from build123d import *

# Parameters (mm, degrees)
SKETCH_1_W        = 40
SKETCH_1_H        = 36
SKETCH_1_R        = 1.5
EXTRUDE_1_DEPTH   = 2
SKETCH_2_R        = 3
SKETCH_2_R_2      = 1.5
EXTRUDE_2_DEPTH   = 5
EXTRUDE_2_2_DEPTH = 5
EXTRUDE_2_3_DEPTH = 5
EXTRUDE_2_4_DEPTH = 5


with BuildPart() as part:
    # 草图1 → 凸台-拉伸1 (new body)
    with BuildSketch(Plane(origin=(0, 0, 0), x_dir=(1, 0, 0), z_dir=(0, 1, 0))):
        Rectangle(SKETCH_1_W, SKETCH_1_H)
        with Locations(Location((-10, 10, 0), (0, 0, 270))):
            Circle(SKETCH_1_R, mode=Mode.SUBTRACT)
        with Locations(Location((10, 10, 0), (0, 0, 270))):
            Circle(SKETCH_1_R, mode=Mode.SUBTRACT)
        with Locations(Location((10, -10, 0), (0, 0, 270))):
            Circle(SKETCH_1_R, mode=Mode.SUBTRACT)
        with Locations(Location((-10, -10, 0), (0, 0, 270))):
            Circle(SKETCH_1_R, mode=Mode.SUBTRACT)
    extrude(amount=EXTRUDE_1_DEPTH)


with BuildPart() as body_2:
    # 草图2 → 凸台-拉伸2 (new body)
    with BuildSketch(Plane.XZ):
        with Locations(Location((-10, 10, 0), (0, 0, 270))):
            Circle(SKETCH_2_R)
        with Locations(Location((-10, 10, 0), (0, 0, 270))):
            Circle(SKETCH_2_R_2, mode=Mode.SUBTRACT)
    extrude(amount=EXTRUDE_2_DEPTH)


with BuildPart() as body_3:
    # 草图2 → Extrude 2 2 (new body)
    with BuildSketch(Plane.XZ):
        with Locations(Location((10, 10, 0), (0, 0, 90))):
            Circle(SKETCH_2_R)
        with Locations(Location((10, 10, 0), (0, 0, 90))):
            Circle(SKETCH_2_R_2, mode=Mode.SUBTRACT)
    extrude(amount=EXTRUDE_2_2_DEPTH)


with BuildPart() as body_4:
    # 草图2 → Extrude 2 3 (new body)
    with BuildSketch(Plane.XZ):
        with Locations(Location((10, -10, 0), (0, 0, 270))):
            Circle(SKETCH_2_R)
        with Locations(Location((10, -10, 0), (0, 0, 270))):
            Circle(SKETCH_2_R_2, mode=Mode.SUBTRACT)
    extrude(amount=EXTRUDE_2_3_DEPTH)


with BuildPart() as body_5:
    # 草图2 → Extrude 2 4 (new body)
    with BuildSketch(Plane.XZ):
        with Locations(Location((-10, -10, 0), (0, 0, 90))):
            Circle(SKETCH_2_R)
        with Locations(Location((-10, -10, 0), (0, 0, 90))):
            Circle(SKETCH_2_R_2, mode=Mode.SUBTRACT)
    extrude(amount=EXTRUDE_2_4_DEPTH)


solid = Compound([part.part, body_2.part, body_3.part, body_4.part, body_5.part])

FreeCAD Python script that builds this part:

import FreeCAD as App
import Part
import Sketcher

doc = App.newDocument("Part")
body = doc.addObject("PartDesign::Body", "Body")

# Sketch on XZ plane
sketch1 = doc.addObject("Sketcher::SketchObject", "Sketch")
body.addObject(sketch1)
sketch1.AttachmentSupport = (doc.XZ_Plane, [""])
sketch1.MapMode = "FlatFace"
sketch1.addGeometry([
    Part.LineSegment(App.Vector(-20, -18, 0), App.Vector(-20, 18, 0)),  # 0
    Part.LineSegment(App.Vector(-20, 18, 0), App.Vector(20, 18, 0)),  # 1
    Part.LineSegment(App.Vector(20, 18, 0), App.Vector(20, -18, 0)),  # 2
    Part.LineSegment(App.Vector(20, -18, 0), App.Vector(-20, -18, 0)),  # 3
    Part.Circle(App.Vector(-10, 10, 0), App.Vector(0, 0, 1), 1.5),  # 4
    Part.Circle(App.Vector(10, 10, 0), App.Vector(0, 0, 1), 1.5),  # 5
    Part.Circle(App.Vector(-10, -10, 0), App.Vector(0, 0, 1), 1.5),  # 6
    Part.Circle(App.Vector(10, -10, 0), App.Vector(0, 0, 1), 1.5),  # 7
], False)
sketch1.addConstraint([
    Sketcher.Constraint("Coincident", 0, 2, 1, 1),
    Sketcher.Constraint("Coincident", 1, 2, 2, 1),
    Sketcher.Constraint("Coincident", 2, 2, 3, 1),
    Sketcher.Constraint("Coincident", 3, 2, 0, 1),
    Sketcher.Constraint("Vertical", 0),
    Sketcher.Constraint("Horizontal", 1),
    Sketcher.Constraint("Vertical", 2),
    Sketcher.Constraint("Horizontal", 3),
    Sketcher.Constraint("Equal", 4, 5),
    Sketcher.Constraint("Equal", 5, 6),
    Sketcher.Constraint("Equal", 6, 7),
    Sketcher.Constraint("Symmetric", 5, 3, 6, 3, -1, 1),
    Sketcher.Constraint("Symmetric", 4, 3, 7, 3, -1, 1),
    Sketcher.Constraint("Symmetric", 0, 2, 2, 2, -1, 1),
    Sketcher.Constraint("Symmetric", 4, 3, 5, 3, -2),
    Sketcher.Constraint("Diameter", 4, 3.0),
    Sketcher.Constraint("DistanceX", 1, 1, 1, 2, 40.0),
    Sketcher.Constraint("DistanceY", 0, 1, 0, 2, 36.0),
    Sketcher.Constraint("DistanceX", 4, 3, -1, 1, 10.0),
    Sketcher.Constraint("DistanceY", -1, 1, 4, 3, 10.0),
])
pad1 = doc.addObject("PartDesign::Pad", "Pad")
body.addObject(pad1)
pad1.Profile = sketch1
pad1.Length = 2
pad1.Reversed = True
body2 = doc.addObject("PartDesign::Body", "Body001")

# Sketch on XZ plane
sketch2 = doc.addObject("Sketcher::SketchObject", "Sketch001")
body2.addObject(sketch2)
sketch2.AttachmentSupport = (doc.getObject("XZ_Plane001"), [""])
sketch2.MapMode = "FlatFace"
sketch2.addGeometry([
    Part.Circle(App.Vector(-10, 10, 0), App.Vector(0, 0, 1), 3),
    Part.Circle(App.Vector(-10, 10, 0), App.Vector(0, 0, 1), 1.5),
], False)
sketch2.addConstraint([
    Sketcher.Constraint("Coincident", 1, 3, 0, 3),
    Sketcher.Constraint("Diameter", 0, 6.0),
    Sketcher.Constraint("Diameter", 1, 3.0),
    Sketcher.Constraint("DistanceX", 0, 3, -1, 1, 10.0),
    Sketcher.Constraint("DistanceY", -1, 1, 0, 3, 10.0),
])
pad2 = doc.addObject("PartDesign::Pad", "Pad001")
body2.addObject(pad2)
pad2.Profile = sketch2
pad2.Length = 5
body3 = doc.addObject("PartDesign::Body", "Body002")

# Sketch on XZ plane
sketch3 = doc.addObject("Sketcher::SketchObject", "Sketch002")
body3.addObject(sketch3)
sketch3.AttachmentSupport = (doc.getObject("XZ_Plane002"), [""])
sketch3.MapMode = "FlatFace"
sketch3.addGeometry([
    Part.Circle(App.Vector(10, 10, 0), App.Vector(0, 0, 1), 3),
    Part.Circle(App.Vector(10, 10, 0), App.Vector(0, 0, 1), 1.5),
], False)
sketch3.addConstraint([
    Sketcher.Constraint("Coincident", 1, 3, 0, 3),
    Sketcher.Constraint("Diameter", 0, 6.0),
    Sketcher.Constraint("Diameter", 1, 3.0),
    Sketcher.Constraint("DistanceX", -1, 1, 0, 3, 10.0),
    Sketcher.Constraint("DistanceY", -1, 1, 0, 3, 10.0),
])
pad3 = doc.addObject("PartDesign::Pad", "Pad002")
body3.addObject(pad3)
pad3.Profile = sketch3
pad3.Length = 5
body4 = doc.addObject("PartDesign::Body", "Body003")

# Sketch on XZ plane
sketch4 = doc.addObject("Sketcher::SketchObject", "Sketch003")
body4.addObject(sketch4)
sketch4.AttachmentSupport = (doc.getObject("XZ_Plane003"), [""])
sketch4.MapMode = "FlatFace"
sketch4.addGeometry([
    Part.Circle(App.Vector(10, -10, 0), App.Vector(0, 0, 1), 3),
    Part.Circle(App.Vector(10, -10, 0), App.Vector(0, 0, 1), 1.5),
], False)
sketch4.addConstraint([
    Sketcher.Constraint("Coincident", 1, 3, 0, 3),
    Sketcher.Constraint("Diameter", 0, 6.0),
    Sketcher.Constraint("Diameter", 1, 3.0),
    Sketcher.Constraint("DistanceX", -1, 1, 0, 3, 10.0),
    Sketcher.Constraint("DistanceY", 0, 3, -1, 1, 10.0),
])
pad4 = doc.addObject("PartDesign::Pad", "Pad003")
body4.addObject(pad4)
pad4.Profile = sketch4
pad4.Length = 5
body5 = doc.addObject("PartDesign::Body", "Body004")

# Sketch on XZ plane
sketch5 = doc.addObject("Sketcher::SketchObject", "Sketch004")
body5.addObject(sketch5)
sketch5.AttachmentSupport = (doc.getObject("XZ_Plane004"), [""])
sketch5.MapMode = "FlatFace"
sketch5.addGeometry([
    Part.Circle(App.Vector(-10, -10, 0), App.Vector(0, 0, 1), 3),
    Part.Circle(App.Vector(-10, -10, 0), App.Vector(0, 0, 1), 1.5),
], False)
sketch5.addConstraint([
    Sketcher.Constraint("Coincident", 1, 3, 0, 3),
    Sketcher.Constraint("Diameter", 0, 6.0),
    Sketcher.Constraint("Diameter", 1, 3.0),
    Sketcher.Constraint("DistanceX", 0, 3, -1, 1, 10.0),
    Sketcher.Constraint("DistanceY", 0, 3, -1, 1, 10.0),
])
pad5 = doc.addObject("PartDesign::Pad", "Pad004")
body5.addObject(pad5)
pad5.Profile = sketch5
pad5.Length = 5

doc.recompute()
